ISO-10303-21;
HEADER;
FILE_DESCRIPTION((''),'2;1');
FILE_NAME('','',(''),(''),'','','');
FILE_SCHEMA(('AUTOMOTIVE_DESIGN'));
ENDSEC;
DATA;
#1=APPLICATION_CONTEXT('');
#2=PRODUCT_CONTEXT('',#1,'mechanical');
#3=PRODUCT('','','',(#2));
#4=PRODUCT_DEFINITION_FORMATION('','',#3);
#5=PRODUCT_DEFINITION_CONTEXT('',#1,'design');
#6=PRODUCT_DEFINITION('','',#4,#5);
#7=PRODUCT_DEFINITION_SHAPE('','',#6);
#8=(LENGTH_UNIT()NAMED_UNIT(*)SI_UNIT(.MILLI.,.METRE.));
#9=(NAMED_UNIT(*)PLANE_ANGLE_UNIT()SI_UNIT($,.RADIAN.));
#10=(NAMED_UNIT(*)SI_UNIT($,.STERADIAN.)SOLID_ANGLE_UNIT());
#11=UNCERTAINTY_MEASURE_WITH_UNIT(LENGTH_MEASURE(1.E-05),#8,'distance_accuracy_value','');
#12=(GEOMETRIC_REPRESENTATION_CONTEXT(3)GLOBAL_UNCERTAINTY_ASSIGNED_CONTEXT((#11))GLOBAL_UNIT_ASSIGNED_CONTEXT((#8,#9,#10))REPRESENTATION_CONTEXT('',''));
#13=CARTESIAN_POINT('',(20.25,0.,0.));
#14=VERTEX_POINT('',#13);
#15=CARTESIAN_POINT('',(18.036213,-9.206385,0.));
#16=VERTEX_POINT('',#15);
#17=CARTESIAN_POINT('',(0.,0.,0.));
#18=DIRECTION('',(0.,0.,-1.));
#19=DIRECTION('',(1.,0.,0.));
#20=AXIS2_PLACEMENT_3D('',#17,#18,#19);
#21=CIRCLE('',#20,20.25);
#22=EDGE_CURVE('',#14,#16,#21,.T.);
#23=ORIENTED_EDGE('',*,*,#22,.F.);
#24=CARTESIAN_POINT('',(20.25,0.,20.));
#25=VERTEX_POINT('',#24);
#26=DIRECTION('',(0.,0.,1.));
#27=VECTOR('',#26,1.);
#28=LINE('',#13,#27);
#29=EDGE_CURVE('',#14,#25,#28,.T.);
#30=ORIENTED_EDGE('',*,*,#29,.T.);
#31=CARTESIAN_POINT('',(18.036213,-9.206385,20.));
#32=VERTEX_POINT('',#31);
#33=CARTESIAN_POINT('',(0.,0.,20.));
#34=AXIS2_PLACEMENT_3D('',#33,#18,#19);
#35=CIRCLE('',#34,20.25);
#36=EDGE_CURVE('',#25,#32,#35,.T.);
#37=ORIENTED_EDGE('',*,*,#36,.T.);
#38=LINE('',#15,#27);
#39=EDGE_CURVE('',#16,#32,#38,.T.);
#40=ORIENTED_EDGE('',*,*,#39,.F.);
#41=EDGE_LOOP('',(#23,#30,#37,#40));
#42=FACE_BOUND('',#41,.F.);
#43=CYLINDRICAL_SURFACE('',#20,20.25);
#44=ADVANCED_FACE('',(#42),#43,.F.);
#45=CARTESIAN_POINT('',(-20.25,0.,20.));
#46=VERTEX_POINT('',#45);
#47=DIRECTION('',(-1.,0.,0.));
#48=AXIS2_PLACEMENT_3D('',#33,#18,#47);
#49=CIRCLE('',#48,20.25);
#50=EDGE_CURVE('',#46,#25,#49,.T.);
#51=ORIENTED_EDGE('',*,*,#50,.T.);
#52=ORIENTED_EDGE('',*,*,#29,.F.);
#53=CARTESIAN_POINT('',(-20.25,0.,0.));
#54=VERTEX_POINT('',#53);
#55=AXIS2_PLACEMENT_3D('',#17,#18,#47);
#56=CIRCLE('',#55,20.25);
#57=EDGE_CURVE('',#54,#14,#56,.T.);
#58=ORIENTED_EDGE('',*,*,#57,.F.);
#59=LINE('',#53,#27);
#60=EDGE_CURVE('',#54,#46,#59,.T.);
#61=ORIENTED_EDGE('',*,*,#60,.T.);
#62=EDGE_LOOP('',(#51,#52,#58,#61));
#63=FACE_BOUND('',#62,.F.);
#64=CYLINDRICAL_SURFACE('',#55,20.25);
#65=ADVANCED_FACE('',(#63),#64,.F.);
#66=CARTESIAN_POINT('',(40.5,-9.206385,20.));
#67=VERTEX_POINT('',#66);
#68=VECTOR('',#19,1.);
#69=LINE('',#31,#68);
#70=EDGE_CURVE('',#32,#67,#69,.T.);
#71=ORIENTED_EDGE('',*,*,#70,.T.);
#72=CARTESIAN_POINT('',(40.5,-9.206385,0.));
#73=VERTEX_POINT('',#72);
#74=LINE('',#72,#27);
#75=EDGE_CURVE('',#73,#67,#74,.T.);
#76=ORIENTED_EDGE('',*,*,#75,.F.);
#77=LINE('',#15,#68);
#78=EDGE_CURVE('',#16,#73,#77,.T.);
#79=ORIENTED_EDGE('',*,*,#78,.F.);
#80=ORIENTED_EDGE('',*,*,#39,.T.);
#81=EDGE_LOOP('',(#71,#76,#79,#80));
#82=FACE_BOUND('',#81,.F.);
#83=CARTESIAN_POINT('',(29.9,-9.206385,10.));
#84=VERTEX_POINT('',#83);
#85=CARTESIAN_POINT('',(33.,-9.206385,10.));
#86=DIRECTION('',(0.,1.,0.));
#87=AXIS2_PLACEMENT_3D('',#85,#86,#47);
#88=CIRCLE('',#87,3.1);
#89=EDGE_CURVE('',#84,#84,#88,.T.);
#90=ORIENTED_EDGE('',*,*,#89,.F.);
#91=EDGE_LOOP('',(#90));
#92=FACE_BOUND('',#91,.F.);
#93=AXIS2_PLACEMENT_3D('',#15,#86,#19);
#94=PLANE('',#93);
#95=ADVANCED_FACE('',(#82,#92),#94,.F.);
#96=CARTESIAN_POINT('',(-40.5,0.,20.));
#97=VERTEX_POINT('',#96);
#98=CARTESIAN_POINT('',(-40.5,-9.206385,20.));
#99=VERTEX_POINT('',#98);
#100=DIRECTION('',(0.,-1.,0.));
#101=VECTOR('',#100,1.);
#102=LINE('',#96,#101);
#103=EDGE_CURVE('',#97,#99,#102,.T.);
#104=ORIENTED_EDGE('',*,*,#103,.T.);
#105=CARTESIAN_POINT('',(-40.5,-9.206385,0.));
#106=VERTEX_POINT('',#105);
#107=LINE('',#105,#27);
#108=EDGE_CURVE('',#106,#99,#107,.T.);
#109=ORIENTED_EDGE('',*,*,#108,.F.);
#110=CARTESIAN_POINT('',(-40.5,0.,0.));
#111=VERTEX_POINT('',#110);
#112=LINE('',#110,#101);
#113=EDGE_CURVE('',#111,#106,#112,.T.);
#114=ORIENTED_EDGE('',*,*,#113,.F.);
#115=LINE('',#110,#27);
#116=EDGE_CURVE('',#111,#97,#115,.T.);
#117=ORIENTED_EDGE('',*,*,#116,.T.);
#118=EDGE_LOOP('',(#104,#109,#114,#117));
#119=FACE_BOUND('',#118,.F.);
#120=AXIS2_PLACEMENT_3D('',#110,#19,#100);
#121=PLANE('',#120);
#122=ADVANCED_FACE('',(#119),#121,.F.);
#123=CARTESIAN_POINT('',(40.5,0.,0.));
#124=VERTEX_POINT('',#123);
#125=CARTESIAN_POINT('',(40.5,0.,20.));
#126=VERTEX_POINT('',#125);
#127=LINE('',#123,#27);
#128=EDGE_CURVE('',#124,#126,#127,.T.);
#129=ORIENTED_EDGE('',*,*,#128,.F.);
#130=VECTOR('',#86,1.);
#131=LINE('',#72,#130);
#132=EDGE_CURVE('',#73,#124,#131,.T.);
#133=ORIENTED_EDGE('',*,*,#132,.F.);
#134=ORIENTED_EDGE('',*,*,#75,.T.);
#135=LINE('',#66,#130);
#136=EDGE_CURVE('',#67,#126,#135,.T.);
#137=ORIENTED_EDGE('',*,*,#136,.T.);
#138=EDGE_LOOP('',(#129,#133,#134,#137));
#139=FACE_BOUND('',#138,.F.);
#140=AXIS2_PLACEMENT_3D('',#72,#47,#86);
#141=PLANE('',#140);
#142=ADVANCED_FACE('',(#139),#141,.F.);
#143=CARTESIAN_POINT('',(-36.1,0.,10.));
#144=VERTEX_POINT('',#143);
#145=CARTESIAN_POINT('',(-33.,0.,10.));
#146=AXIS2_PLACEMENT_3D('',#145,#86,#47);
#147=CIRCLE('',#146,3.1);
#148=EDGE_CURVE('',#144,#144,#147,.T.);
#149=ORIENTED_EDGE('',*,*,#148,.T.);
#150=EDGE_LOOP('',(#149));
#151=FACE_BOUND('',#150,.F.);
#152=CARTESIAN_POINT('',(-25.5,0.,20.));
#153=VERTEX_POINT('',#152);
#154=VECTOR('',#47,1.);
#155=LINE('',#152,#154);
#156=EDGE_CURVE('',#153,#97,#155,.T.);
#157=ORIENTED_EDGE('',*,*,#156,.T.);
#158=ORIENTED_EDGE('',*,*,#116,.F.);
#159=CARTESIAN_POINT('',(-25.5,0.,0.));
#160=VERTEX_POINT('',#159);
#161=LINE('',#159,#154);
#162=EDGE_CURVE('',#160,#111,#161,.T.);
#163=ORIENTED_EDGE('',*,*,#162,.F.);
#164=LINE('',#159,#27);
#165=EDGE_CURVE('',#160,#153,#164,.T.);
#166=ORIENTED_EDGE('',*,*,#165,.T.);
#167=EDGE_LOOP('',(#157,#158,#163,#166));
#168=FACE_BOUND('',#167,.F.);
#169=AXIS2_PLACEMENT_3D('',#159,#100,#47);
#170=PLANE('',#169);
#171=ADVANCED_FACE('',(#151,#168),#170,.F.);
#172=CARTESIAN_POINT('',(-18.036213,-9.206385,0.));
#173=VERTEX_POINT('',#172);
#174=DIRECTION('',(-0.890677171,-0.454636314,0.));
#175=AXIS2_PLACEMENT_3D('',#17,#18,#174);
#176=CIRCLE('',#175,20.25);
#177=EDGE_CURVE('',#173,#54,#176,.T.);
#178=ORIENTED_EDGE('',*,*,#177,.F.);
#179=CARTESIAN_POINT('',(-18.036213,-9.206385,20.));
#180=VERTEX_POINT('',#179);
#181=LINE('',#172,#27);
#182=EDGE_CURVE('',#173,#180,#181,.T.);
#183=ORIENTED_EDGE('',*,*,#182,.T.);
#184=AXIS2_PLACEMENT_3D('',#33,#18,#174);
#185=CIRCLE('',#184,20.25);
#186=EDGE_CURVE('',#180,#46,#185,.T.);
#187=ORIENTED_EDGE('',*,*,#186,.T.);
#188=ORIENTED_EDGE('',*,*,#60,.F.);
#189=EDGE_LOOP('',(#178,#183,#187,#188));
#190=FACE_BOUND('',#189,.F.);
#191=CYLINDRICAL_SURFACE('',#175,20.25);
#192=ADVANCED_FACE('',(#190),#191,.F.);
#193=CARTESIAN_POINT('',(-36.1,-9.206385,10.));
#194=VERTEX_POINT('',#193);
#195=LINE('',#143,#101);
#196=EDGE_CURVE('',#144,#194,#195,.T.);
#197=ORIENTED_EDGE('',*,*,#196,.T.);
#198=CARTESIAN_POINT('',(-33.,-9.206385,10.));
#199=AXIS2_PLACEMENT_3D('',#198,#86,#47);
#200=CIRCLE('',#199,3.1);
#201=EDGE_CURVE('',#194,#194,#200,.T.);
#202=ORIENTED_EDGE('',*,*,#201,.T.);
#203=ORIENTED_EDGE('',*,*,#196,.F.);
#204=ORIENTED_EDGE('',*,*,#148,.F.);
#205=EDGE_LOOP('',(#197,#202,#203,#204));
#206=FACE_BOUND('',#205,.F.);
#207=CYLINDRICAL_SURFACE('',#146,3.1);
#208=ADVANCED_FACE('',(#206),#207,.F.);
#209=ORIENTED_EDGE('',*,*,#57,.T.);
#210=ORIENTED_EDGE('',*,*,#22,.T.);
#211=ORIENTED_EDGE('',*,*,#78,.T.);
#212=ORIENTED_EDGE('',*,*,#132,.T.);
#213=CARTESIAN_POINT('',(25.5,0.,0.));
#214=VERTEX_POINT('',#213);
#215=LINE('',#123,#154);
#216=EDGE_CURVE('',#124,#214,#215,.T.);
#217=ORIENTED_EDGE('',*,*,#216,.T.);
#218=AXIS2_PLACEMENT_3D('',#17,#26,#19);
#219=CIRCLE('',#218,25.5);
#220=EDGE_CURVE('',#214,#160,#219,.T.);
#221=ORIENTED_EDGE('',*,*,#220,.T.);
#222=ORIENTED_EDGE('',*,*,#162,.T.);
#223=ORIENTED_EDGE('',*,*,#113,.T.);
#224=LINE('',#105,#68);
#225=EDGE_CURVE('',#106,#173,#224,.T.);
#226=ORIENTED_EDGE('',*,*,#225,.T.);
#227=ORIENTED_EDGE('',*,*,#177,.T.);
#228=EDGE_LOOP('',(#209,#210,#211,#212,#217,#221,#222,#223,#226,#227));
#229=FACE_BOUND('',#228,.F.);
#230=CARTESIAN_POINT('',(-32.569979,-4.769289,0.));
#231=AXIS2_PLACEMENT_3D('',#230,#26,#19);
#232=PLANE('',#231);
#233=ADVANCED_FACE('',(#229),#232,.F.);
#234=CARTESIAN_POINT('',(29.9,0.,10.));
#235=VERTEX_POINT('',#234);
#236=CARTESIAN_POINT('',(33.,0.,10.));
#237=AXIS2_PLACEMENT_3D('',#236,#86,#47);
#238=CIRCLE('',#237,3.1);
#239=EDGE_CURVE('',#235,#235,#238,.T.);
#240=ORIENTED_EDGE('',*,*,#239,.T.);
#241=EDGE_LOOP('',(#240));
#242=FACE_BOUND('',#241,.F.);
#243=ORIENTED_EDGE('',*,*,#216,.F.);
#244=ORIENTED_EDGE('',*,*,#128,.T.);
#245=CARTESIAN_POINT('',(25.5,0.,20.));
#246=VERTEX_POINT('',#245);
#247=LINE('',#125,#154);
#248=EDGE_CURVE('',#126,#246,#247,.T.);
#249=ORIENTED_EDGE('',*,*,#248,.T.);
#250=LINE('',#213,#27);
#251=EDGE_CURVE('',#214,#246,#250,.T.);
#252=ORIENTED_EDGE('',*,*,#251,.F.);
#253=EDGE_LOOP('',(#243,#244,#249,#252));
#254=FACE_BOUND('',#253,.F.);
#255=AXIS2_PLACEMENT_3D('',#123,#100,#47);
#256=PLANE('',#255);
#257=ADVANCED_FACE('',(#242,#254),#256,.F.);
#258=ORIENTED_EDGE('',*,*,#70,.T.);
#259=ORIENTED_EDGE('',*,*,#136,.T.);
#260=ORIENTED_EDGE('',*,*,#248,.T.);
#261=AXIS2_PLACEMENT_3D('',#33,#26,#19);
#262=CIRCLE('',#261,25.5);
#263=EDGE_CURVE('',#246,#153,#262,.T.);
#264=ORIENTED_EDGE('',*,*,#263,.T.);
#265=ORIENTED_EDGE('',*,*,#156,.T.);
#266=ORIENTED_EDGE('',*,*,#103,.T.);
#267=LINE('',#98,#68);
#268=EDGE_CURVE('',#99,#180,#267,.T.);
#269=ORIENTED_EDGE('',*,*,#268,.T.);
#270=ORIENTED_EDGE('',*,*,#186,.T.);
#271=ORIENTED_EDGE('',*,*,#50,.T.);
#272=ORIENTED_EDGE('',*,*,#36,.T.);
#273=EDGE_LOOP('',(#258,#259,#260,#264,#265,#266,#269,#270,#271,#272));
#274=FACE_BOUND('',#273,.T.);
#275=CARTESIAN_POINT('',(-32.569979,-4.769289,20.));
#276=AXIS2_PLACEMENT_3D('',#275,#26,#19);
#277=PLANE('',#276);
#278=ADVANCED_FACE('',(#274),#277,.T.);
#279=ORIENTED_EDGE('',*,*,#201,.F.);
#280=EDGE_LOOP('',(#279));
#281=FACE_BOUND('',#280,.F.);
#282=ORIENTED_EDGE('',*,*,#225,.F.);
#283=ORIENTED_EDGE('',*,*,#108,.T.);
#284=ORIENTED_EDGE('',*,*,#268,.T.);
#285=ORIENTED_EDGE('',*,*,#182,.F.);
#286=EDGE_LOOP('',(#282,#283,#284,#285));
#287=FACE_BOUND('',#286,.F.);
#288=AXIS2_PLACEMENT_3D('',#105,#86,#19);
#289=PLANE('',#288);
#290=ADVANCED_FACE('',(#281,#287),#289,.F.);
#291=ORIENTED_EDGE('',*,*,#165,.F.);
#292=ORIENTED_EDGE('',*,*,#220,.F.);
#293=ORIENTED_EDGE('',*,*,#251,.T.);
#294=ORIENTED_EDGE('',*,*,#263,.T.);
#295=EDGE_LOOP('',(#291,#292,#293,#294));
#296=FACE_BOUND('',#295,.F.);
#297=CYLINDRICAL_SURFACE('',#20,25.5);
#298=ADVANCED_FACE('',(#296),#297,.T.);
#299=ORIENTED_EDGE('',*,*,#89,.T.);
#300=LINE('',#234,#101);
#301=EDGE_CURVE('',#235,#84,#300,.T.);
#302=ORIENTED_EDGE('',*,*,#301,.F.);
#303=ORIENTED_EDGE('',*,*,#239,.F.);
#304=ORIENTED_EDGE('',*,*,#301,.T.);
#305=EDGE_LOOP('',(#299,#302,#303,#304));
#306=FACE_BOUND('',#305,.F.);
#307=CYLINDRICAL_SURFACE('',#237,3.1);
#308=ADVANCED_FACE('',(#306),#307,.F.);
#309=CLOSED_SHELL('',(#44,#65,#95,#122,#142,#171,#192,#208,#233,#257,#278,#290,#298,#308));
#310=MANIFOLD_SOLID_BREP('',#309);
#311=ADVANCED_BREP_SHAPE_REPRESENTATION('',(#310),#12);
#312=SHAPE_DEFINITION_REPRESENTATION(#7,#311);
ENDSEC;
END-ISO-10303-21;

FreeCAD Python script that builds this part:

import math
import FreeCAD as App
import Part
import Sketcher

V = App.Vector
Q = App.Units.Quantity

doc = App.newDocument("Part")
body = doc.addObject("PartDesign::Body", "Body")

# Sketch on XY plane
sketch1 = body.newObject("Sketcher::SketchObject", "Sketch")
sketch1.AttachmentSupport = (doc.getObject("XY_Plane"), [""])
sketch1.MapMode = "FlatFace"
sketch1.addGeometry(Part.LineSegment(V(-26, 0, 0), V(-40, 0, 0)), False)
sketch1.addGeometry(Part.LineSegment(V(-40, 0, 0), V(-40, -9, 0)), False)
sketch1.addGeometry(Part.LineSegment(V(-40, -9, 0), V(-18, -9, 0)), False)
sketch1.addGeometry(Part.ArcOfCircle(Part.Circle(V(0, 0, 0), V(0, 0, 1), 20), math.radians(180), math.radians(207)), False)
sketch1.addGeometry(Part.ArcOfCircle(Part.Circle(V(0, 0, 0), V(0, 0, 1), 20), math.radians(0), math.radians(180)), False)
sketch1.addGeometry(Part.ArcOfCircle(Part.Circle(V(0, 0, 0), V(0, 0, 1), 20), math.radians(-27), math.radians(0)), False)
sketch1.addGeometry(Part.LineSegment(V(18, -9, 0), V(40, -9, 0)), False)
sketch1.addGeometry(Part.LineSegment(V(40, -9, 0), V(40, 0, 0)), False)
sketch1.addGeometry(Part.LineSegment(V(40, 0, 0), V(26, 0, 0)), False)
sketch1.addGeometry(Part.ArcOfCircle(Part.Circle(V(0, 0, 0), V(0, 0, 1), 26), math.radians(0), math.radians(180)), False)
sketch1.addConstraint(Sketcher.Constraint("Coincident", 0, 2, 1, 1))
sketch1.addConstraint(Sketcher.Constraint("Coincident", 1, 2, 2, 1))
sketch1.addConstraint(Sketcher.Constraint("Coincident", 2, 2, 3, 2))
sketch1.addConstraint(Sketcher.Constraint("Tangent", 3, 1, 4, 2))
sketch1.addConstraint(Sketcher.Constraint("Tangent", 4, 1, 5, 2))
sketch1.addConstraint(Sketcher.Constraint("Coincident", 5, 1, 6, 1))
sketch1.addConstraint(Sketcher.Constraint("Coincident", 6, 2, 7, 1))
sketch1.addConstraint(Sketcher.Constraint("Coincident", 7, 2, 8, 1))
sketch1.addConstraint(Sketcher.Constraint("Coincident", 8, 2, 9, 1))
sketch1.addConstraint(Sketcher.Constraint("Coincident", 9, 2, 0, 1))
sketch1.addConstraint(Sketcher.Constraint("Horizontal", 0))
sketch1.addConstraint(Sketcher.Constraint("Vertical", 1))
sketch1.addConstraint(Sketcher.Constraint("Horizontal", 2))
sketch1.addConstraint(Sketcher.Constraint("Horizontal", 6))
sketch1.addConstraint(Sketcher.Constraint("Vertical", 7))
sketch1.addConstraint(Sketcher.Constraint("Horizontal", 8))
sketch1.addConstraint(Sketcher.Constraint("Coincident", 3, 3, -1, 1))
sketch1.addConstraint(Sketcher.Constraint("Coincident", 9, 3, -1, 1))
sketch1.addConstraint(Sketcher.Constraint("Equal", 3, 4))
sketch1.addConstraint(Sketcher.Constraint("Equal", 4, 5))
sketch1.addConstraint(Sketcher.Constraint("Symmetric", 0, 2, 7, 2, -1, 1))
sketch1.addConstraint(Sketcher.Constraint("PointOnObject", 0, 2, -1))
sketch1.addConstraint(Sketcher.Constraint("PointOnObject", 3, 1, -1))
sketch1.addConstraint(Sketcher.Constraint("PointOnObject", 4, 1, -1))
sketch1.addConstraint(Sketcher.Constraint("Horizontal", 2, 2, 5, 1))
sketch1.addConstraint(Sketcher.Constraint("Radius", 9, Q("25.5 mm")))
sketch1.addConstraint(Sketcher.Constraint("DistanceX", 0, 2, 0, 1, Q("15 mm")))
sketch1.addConstraint(Sketcher.Constraint("Radius", 3, Q("20.25 mm")))
sketch1.addConstraint(Sketcher.Constraint("DistanceX", 2, 1, 2, 2, Q("22.463787 mm")))
pad1 = body.newObject("PartDesign::Pad", "Pad")
pad1.Profile = sketch1
pad1.Length = 20

# Sketch on XZ plane
sketch2 = body.newObject("Sketcher::SketchObject", "Sketch001")
sketch2.AttachmentSupport = (doc.getObject("XZ_Plane"), [""])
sketch2.MapMode = "FlatFace"
sketch2.addGeometry(Part.Circle(V(-33, 10, 0), V(0, 0, 1), 3.1), False)
sketch2.addGeometry(Part.Circle(V(33, 10, 0), V(0, 0, 1), 3.1), False)
sketch2.addConstraint(Sketcher.Constraint("Equal", 0, 1))
sketch2.addConstraint(Sketcher.Constraint("Symmetric", 0, 3, 1, 3, -2))
sketch2.addConstraint(Sketcher.Constraint("Diameter", 0, Q("6.2 mm")))
sketch2.addConstraint(Sketcher.Constraint("DistanceX", 0, 3, -1, 1, Q("33 mm")))
sketch2.addConstraint(Sketcher.Constraint("DistanceY", -1, 1, 0, 3, Q("10 mm")))
pocket1 = body.newObject("PartDesign::Pocket", "Pocket")
pocket1.Profile = sketch2
pocket1.Length = 25
pocket1.Reversed = True

doc.recompute()
